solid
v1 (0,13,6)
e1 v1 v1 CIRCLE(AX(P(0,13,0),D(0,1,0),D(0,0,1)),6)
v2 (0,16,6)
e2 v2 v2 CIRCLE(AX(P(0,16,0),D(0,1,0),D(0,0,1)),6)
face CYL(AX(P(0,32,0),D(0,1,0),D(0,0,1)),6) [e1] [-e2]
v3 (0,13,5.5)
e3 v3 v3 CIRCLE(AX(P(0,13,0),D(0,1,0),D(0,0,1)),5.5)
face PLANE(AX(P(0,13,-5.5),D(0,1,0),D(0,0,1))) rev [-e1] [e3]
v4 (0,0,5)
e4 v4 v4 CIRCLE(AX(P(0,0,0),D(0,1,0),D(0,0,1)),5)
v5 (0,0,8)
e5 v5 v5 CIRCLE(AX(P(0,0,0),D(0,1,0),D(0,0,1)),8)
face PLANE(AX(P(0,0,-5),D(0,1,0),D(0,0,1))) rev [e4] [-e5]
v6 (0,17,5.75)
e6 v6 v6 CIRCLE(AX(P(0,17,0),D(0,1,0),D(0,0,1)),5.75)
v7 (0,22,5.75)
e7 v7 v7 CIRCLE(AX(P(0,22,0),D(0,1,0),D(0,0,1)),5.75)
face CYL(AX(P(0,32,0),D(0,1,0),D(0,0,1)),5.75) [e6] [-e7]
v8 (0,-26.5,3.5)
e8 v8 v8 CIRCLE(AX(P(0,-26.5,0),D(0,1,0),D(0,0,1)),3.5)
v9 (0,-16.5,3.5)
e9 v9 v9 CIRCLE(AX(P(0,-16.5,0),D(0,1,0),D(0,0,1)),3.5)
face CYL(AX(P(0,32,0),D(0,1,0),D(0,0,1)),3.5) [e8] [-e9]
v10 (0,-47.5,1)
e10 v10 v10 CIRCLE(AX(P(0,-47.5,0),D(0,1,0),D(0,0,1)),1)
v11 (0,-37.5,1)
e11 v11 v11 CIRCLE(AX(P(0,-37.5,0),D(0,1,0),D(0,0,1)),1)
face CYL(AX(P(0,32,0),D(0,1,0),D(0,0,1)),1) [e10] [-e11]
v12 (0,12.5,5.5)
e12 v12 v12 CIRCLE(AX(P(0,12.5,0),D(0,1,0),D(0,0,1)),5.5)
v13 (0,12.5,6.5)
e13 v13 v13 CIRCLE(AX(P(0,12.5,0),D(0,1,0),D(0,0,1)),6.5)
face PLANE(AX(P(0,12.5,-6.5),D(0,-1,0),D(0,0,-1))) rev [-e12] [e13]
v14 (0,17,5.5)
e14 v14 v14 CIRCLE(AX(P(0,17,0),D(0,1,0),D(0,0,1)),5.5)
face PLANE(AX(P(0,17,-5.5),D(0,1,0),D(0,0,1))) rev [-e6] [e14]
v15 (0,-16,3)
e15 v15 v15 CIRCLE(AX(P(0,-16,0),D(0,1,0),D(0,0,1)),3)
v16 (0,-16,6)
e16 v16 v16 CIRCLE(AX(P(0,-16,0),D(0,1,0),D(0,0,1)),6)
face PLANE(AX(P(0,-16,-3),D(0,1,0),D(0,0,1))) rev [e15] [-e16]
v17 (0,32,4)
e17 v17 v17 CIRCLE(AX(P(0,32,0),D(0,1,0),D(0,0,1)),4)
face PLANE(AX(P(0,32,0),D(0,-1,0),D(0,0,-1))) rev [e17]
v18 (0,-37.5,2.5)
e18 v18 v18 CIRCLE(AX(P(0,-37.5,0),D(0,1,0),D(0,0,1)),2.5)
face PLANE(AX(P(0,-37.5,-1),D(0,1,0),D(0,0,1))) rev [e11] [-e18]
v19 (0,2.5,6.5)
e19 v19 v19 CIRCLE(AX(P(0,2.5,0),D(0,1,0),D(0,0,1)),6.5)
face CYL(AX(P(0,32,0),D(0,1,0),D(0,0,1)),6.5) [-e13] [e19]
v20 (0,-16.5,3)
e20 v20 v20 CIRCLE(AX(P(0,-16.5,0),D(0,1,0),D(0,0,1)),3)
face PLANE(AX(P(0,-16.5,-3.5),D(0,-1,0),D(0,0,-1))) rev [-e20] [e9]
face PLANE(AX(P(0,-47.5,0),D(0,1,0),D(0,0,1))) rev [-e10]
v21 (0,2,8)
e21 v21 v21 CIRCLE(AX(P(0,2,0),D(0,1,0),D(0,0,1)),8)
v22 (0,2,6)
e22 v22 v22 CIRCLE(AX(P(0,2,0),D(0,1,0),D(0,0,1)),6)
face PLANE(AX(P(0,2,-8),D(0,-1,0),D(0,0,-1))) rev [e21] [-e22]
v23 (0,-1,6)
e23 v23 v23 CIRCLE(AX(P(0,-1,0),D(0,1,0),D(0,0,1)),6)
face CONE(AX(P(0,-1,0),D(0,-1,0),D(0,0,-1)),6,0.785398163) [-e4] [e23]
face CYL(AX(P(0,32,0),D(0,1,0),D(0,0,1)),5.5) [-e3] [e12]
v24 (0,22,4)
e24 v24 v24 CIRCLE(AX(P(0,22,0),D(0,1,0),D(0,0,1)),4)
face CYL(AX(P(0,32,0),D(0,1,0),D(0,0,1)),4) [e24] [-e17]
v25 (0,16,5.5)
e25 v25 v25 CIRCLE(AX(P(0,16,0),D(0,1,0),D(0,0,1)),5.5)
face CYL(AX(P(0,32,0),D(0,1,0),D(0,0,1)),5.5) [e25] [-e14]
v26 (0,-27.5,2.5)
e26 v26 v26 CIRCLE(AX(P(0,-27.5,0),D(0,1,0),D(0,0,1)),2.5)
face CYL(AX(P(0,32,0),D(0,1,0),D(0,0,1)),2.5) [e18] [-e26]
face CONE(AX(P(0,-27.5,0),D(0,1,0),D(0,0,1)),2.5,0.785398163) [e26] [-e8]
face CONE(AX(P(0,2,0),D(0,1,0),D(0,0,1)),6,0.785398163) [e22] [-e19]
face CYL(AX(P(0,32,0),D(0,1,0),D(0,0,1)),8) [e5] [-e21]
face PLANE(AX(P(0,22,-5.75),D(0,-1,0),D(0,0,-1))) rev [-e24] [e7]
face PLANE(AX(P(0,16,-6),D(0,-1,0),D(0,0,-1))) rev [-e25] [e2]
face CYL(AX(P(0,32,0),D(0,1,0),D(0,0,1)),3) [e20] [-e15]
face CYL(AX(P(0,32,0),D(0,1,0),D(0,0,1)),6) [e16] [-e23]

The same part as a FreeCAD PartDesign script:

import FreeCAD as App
import Part
import Sketcher

V = App.Vector


def add_polygon(sketch, points):
    """Adds a closed chain of lines whose ends are joined by coincident constraints."""
    first, n = sketch.GeometryCount, len(points)
    for a, b in zip(points, points[1:] + points[:1]):
        sketch.addGeometry(Part.LineSegment(App.Vector(*a, 0), App.Vector(*b, 0)), False)
    for i in range(n):
        sketch.addConstraint(Sketcher.Constraint("Coincident", first + i, 2, first + (i + 1) % n, 1))

doc = App.newDocument("Part")
params = doc.addObject("Spreadsheet::Sheet", "Params")
for row, (alias, value) in enumerate([
    ("sketch1_width", "10 mm"),
    ("sketch1_width2", "15 mm"),
    ("sketch1_width3", "2 mm"),
    ("sketch1_width4", "3 mm"),
    ("sketch1_width5", "1 mm"),
    ("revolution_angle", "360 deg"),
], start=1):
    params.set(f"A{row}", alias)
    params.set(f"B{row}", "=" + value)
    params.setAlias(f"B{row}", alias)

body = doc.addObject("PartDesign::Body", "Body")

# Sketch on YZ plane
sketch1 = doc.addObject("Sketcher::SketchObject", "Sketch")
body.addObject(sketch1)
sketch1.AttachmentSupport = (doc.YZ_Plane, [""])
sketch1.MapMode = "FlatFace"
add_polygon(sketch1, [(32, 0), (-47.5, 0), (-47.5, -1), (-37.5, -1), (-37.5, -2.5), (-27.5, -2.5), (-26.5, -3.5), (-16.5, -3.5), (-16.5, -3), (-16, -3), (-16, -6), (-1, -6), (0, -5), (0, -8), (2, -8), (2, -6), (2.5, -6.5), (12.5, -6.5), (12.5, -5.5), (13, -5.5), (13, -6), (16, -6), (16, -5.5), (17, -5.5), (17, -5.75), (22, -5.75), (22, -4), (32, -4)])  # lines 0-27
sketch1.addConstraint(Sketcher.Constraint("Horizontal", 0))
sketch1.addConstraint(Sketcher.Constraint("Vertical", 1))
sketch1.addConstraint(Sketcher.Constraint("Horizontal", 2))
sketch1.addConstraint(Sketcher.Constraint("Vertical", 3))
sketch1.addConstraint(Sketcher.Constraint("Horizontal", 4))
sketch1.addConstraint(Sketcher.Constraint("Horizontal", 6))
sketch1.addConstraint(Sketcher.Constraint("Vertical", 7))
sketch1.addConstraint(Sketcher.Constraint("Horizontal", 8))
sketch1.addConstraint(Sketcher.Constraint("Vertical", 9))
sketch1.addConstraint(Sketcher.Constraint("Horizontal", 10))
sketch1.addConstraint(Sketcher.Constraint("Vertical", 12))
sketch1.addConstraint(Sketcher.Constraint("Horizontal", 13))
sketch1.addConstraint(Sketcher.Constraint("Vertical", 14))
sketch1.addConstraint(Sketcher.Constraint("Horizontal", 16))
sketch1.addConstraint(Sketcher.Constraint("Vertical", 17))
sketch1.addConstraint(Sketcher.Constraint("Horizontal", 18))
sketch1.addConstraint(Sketcher.Constraint("Vertical", 19))
sketch1.addConstraint(Sketcher.Constraint("Horizontal", 20))
sketch1.addConstraint(Sketcher.Constraint("Vertical", 21))
sketch1.addConstraint(Sketcher.Constraint("Horizontal", 22))
sketch1.addConstraint(Sketcher.Constraint("Vertical", 23))
sketch1.addConstraint(Sketcher.Constraint("Horizontal", 24))
sketch1.addConstraint(Sketcher.Constraint("Vertical", 25))
sketch1.addConstraint(Sketcher.Constraint("Horizontal", 26))
sketch1.addConstraint(Sketcher.Constraint("Vertical", 27))
sketch1.addConstraint(Sketcher.Constraint("Symmetric", 9, 2, 20, 2, -2))
sketch1.addConstraint(Sketcher.Constraint("PointOnObject", 0, 2, -1))
sketch1.addConstraint(Sketcher.Constraint("PointOnObject", 11, 2, -2))
sketch1.addConstraint(Sketcher.Constraint("Perpendicular", 5, 11))
sketch1.addConstraint(Sketcher.Constraint("Perpendicular", 11, 15))
sketch1.addConstraint(Sketcher.Constraint("Horizontal", 10, 2, 14, 2))
sketch1.addConstraint(Sketcher.Constraint("Horizontal", 18, 2, 21, 2))
sketch1.addConstraint(Sketcher.Constraint("Equal", 2, 4))
sketch1.addConstraint(Sketcher.Constraint("Equal", 4, 6))
sketch1.addConstraint(Sketcher.Constraint("Equal", 6, 16))
sketch1.addConstraint(Sketcher.Constraint("Equal", 8, 18))
sketch1.addConstraint(Sketcher.Constraint("Equal", 16, 26))
sketch1.addConstraint(Sketcher.Constraint("Equal", 22, 1))
sketch1.addConstraint(Sketcher.Constraint("Equal", 18, 7))
sketch1.addConstraint(Sketcher.Constraint("Equal", 20, 9))
sketch1.addConstraint(Sketcher.Constraint("Equal", 9, 12))
sketch1.addConstraint(Sketcher.Constraint("Equal", 13, 14))
sketch1.addConstraint(Sketcher.Constraint("Equal", 1, 17))
sketch1.addConstraint(Sketcher.Constraint("Equal", 7, 19))
sketch1.addConstraint(Sketcher.Constraint("Equal", 5, 11))
sketch1.addConstraint(Sketcher.Constraint("DistanceX", 2, 1, 2, 2, 10.0))
sketch1.addConstraint(Sketcher.Constraint("DistanceX", 10, 1, 10, 2, 15.0))
sketch1.addConstraint(Sketcher.Constraint("DistanceX", 13, 1, 13, 2, 2.0))
sketch1.addConstraint(Sketcher.Constraint("DistanceX", 20, 1, 20, 2, 3.0))
sketch1.addConstraint(Sketcher.Constraint("DistanceX", 22, 1, 22, 2, 1.0))
sketch1.addConstraint(Sketcher.Constraint("DistanceX", 24, 1, 24, 2, 5.0))
sketch1.addConstraint(Sketcher.Constraint("DistanceY", 27, 1, 27, 2, 4.0))
sketch1.addConstraint(Sketcher.Constraint("DistanceX", 0, 2, 0, 1, 79.5))
sketch1.addConstraint(Sketcher.Constraint("DistanceY", 3, 2, 3, 1, 1.5))
sketch1.addConstraint(Sketcher.Constraint("DistanceY", 23, 2, 23, 1, 0.25))
sketch1.setExpression("Constraints[73]", "Params.sketch1_width")
sketch1.setExpression("Constraints[74]", "Params.sketch1_width2")
sketch1.setExpression("Constraints[75]", "Params.sketch1_width3")
sketch1.setExpression("Constraints[76]", "Params.sketch1_width4")
sketch1.setExpression("Constraints[77]", "Params.sketch1_width5")
revolution = doc.addObject("PartDesign::Revolution", "Revolution")
body.addObject(revolution)
revolution.Profile = sketch1
revolution.ReferenceAxis = (sketch1, ["H_Axis"])
revolution.setExpression("Angle", "Params.revolution_angle")

doc.recompute()
